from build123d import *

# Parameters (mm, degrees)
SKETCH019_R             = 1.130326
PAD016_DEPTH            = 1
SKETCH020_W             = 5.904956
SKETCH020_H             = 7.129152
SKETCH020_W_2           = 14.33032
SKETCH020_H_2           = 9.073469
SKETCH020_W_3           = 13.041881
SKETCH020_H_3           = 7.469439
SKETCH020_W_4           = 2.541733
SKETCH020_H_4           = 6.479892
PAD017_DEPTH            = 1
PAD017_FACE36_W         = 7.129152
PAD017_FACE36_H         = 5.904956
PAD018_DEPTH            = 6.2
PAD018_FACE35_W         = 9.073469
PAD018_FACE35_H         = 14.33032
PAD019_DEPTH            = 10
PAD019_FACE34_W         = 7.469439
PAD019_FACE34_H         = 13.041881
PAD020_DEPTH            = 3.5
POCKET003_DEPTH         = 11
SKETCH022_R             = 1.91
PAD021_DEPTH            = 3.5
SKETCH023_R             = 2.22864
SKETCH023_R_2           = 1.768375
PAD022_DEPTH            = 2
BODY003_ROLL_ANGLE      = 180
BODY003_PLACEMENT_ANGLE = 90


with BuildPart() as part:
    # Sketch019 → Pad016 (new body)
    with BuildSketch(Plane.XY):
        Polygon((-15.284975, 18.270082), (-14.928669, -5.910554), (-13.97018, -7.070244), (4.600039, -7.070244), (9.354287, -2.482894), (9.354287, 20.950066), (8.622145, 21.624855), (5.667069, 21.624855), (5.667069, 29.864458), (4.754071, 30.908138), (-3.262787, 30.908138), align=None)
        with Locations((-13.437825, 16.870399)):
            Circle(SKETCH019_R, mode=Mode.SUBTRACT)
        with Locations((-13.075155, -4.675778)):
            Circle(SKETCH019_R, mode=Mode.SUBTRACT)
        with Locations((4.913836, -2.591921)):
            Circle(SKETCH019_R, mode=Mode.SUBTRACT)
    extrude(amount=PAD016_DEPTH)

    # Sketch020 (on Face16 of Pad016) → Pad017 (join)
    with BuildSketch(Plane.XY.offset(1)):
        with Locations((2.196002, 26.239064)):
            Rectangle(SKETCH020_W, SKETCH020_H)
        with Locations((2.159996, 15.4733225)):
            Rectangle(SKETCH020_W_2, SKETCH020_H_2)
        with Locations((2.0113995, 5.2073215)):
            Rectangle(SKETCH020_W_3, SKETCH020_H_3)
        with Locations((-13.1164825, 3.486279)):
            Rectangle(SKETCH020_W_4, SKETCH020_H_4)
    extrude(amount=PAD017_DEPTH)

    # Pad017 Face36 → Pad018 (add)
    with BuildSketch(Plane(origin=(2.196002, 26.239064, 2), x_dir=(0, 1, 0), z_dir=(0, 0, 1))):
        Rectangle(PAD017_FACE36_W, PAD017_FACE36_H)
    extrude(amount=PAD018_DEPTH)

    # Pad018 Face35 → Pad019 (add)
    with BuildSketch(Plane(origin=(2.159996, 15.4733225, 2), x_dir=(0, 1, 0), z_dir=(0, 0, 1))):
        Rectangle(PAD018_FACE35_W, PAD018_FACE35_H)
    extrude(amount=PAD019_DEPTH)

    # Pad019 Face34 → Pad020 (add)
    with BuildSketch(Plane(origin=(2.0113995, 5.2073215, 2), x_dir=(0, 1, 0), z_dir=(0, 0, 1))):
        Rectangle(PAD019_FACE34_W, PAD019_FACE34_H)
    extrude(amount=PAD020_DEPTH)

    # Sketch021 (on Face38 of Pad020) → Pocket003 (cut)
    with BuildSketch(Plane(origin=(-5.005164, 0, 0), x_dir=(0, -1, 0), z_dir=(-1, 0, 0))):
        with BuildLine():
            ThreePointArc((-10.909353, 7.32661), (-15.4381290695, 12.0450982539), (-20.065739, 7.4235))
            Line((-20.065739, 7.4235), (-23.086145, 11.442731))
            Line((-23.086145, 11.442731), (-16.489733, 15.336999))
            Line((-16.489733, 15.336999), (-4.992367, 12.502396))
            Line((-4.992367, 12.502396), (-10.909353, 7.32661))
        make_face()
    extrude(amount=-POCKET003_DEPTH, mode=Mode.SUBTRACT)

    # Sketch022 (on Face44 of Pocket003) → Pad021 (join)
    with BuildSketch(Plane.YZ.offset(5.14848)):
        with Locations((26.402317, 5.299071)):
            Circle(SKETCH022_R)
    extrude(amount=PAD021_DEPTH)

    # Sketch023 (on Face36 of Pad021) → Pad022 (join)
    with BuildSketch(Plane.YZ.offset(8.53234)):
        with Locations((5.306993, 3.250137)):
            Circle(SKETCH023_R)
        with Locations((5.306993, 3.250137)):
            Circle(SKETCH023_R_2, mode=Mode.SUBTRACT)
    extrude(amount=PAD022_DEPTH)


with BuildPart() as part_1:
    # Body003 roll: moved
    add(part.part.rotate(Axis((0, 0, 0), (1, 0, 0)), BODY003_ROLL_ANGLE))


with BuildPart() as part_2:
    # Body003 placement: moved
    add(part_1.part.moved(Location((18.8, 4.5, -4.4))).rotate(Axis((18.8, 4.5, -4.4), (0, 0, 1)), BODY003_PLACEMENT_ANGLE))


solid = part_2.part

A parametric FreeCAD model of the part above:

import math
import FreeCAD as App
import Part
import Sketcher
from FreeCAD import Vector
Q = App.Units.Quantity

doc = App.newDocument("Part")
body = doc.addObject("PartDesign::Body", "Body")

sketch1 = body.newObject("Sketcher::SketchObject", "Sketch")
sketch1.AttachmentSupport = (doc.getObject("XY_Plane"), [""])
sketch1.MapMode = "FlatFace"
sketch1.addGeometry([
    Part.LineSegment(Vector(-15.284975, 18.270082, 0), Vector(-14.928669, -5.910554, 0)),
    Part.LineSegment(Vector(-14.928669, -5.910554, 0), Vector(-13.97018, -7.070244, 0)),
    Part.LineSegment(Vector(-13.97018, -7.070244, 0), Vector(4.600039, -7.070244, 0)),
    Part.LineSegment(Vector(4.600039, -7.070244, 0), Vector(9.354287, -2.482894, 0)),
    Part.LineSegment(Vector(9.354287, -2.482894, 0), Vector(9.354287, 20.950066, 0)),
    Part.LineSegment(Vector(9.354287, 20.950066, 0), Vector(8.622145, 21.624855, 0)),
    Part.LineSegment(Vector(8.622145, 21.624855, 0), Vector(5.667069, 21.624855, 0)),
    Part.LineSegment(Vector(5.667069, 21.624855, 0), Vector(5.667069, 29.864458, 0)),
    Part.LineSegment(Vector(5.667069, 29.864458, 0), Vector(4.754071, 30.908138, 0)),
    Part.LineSegment(Vector(4.754071, 30.908138, 0), Vector(-3.262787, 30.908138, 0)),
    Part.LineSegment(Vector(-3.262787, 30.908138, 0), Vector(-15.284975, 18.270082, 0)),
    Part.Circle(Vector(-13.075155, -4.675778, 0), Vector(0, 0, 1), 1.130326),
    Part.Circle(Vector(4.913836, -2.591921, 0), Vector(0, 0, 1), 1.130326),
    Part.Circle(Vector(-13.437825, 16.870399, 0), Vector(0, 0, 1), 1.130326),
], False)
sketch1.addConstraint([
    Sketcher.Constraint("Coincident", 0, 2, 1, 1),
    Sketcher.Constraint("Coincident", 1, 2, 2, 1),
    Sketcher.Constraint("Coincident", 2, 2, 3, 1),
    Sketcher.Constraint("Coincident", 3, 2, 4, 1),
    Sketcher.Constraint("Coincident", 4, 2, 5, 1),
    Sketcher.Constraint("Coincident", 5, 2, 6, 1),
    Sketcher.Constraint("Coincident", 6, 2, 7, 1),
    Sketcher.Constraint("Coincident", 7, 2, 8, 1),
    Sketcher.Constraint("Coincident", 8, 2, 9, 1),
    Sketcher.Constraint("Coincident", 9, 2, 10, 1),
    Sketcher.Constraint("Coincident", 10, 2, 0, 1),
    Sketcher.Constraint("Horizontal", 2),
    Sketcher.Constraint("Vertical", 4),
    Sketcher.Constraint("Horizontal", 6),
    Sketcher.Constraint("Vertical", 7),
    Sketcher.Constraint("Horizontal", 9),
    Sketcher.Constraint("Equal", 11, 12),
    Sketcher.Constraint("Equal", 12, 13),
    Sketcher.Constraint("Diameter", 11, Q("2.260652 mm")),
    Sketcher.Constraint("DistanceX", 2, 1, 2, 2, Q("18.570219 mm")),
    Sketcher.Constraint("DistanceY", 4, 1, 4, 2, Q("23.43296 mm")),
    Sketcher.Constraint("DistanceY", -1, 1, 13, 3, Q("16.870399 mm")),
    Sketcher.Constraint("DistanceY", 2, 2, 5, 2, Q("28.695099 mm")),
    Sketcher.Constraint("Distance", 0, Q("24.183261 mm")),
    Sketcher.Constraint("Distance", 1, Q("1.504521 mm")),
    Sketcher.Constraint("Distance", 3, Q("6.606561 mm")),
    Sketcher.Constraint("DistanceX", 6, 2, 6, 1, Q("2.955076 mm")),
    Sketcher.Constraint("DistanceX", 9, 2, 9, 1, Q("8.016858 mm")),
    Sketcher.Constraint("DistanceY", 7, 1, 7, 2, Q("8.239603 mm")),
    Sketcher.Constraint("DistanceY", 11, 3, -1, 1, Q("4.675778 mm")),
    Sketcher.Constraint("DistanceY", 12, 3, -1, 1, Q("2.591921 mm")),
    Sketcher.Constraint("DistanceX", 0, 2, -1, 1, Q("14.928669 mm")),
    Sketcher.Constraint("DistanceX", 1, 2, -1, 1, Q("13.97018 mm")),
    Sketcher.Constraint("DistanceX", -1, 1, 6, 2, Q("5.667069 mm")),
    Sketcher.Constraint("DistanceX", -1, 1, 8, 2, Q("4.754071 mm")),
    Sketcher.Constraint("DistanceY", -1, 1, 8, 2, Q("30.908138 mm")),
    Sketcher.Constraint("DistanceY", -1, 1, 10, 2, Q("18.270082 mm")),
    Sketcher.Constraint("DistanceX", 11, 3, 12, 3, Q("17.988991 mm")),
    Sketcher.Constraint("DistanceX", 13, 3, 11, 3, Q("0.36267 mm")),
    Sketcher.Constraint("DistanceX", 12, 3, 3, 2, Q("4.440451 mm")),
    Sketcher.Constraint("DistanceY", 2, 2, 3, 2, Q("4.58735 mm")),
    Sketcher.Constraint("DistanceY", 13, 3, 7, 2, Q("12.994059 mm")),
])
pad1 = body.newObject("PartDesign::Pad", "Pad")
pad1.Profile = sketch1
pad1.Length = 1

sketch2 = body.newObject("Sketcher::SketchObject", "Sketch001")
sketch2.AttachmentSupport = (doc.getObject("XY_Plane"), [""])
sketch2.MapMode = "FlatFace"
sketch2.AttachmentOffset = App.Placement(Vector(0, 0, 1), App.Rotation())
sketch2.addGeometry([
    Part.LineSegment(Vector(-0.756476, 29.80364, 0), Vector(-0.756476, 22.674488, 0)),
    Part.LineSegment(Vector(-0.756476, 22.674488, 0), Vector(5.14848, 22.674488, 0)),
    Part.LineSegment(Vector(5.14848, 22.674488, 0), Vector(5.14848, 29.80364, 0)),
    Part.LineSegment(Vector(5.14848, 29.80364, 0), Vector(-0.756476, 29.80364, 0)),
    Part.LineSegment(Vector(-5.005164, 20.010057, 0), Vector(-5.005164, 10.936588, 0)),
    Part.LineSegment(Vector(-5.005164, 10.936588, 0), Vector(9.325156, 10.936588, 0)),
    Part.LineSegment(Vector(9.325156, 10.936588, 0), Vector(9.325156, 20.010057, 0)),
    Part.LineSegment(Vector(9.325156, 20.010057, 0), Vector(-5.005164, 20.010057, 0)),
    Part.LineSegment(Vector(-4.509541, 8.942041, 0), Vector(-4.509541, 1.472602, 0)),
    Part.LineSegment(Vector(-4.509541, 1.472602, 0), Vector(8.53234, 1.472602, 0)),
    Part.LineSegment(Vector(8.53234, 1.472602, 0), Vector(8.53234, 8.942041, 0)),
    Part.LineSegment(Vector(8.53234, 8.942041, 0), Vector(-4.509541, 8.942041, 0)),
    Part.LineSegment(Vector(-14.387349, 6.726225, 0), Vector(-14.387349, 0.246333, 0)),
    Part.LineSegment(Vector(-14.387349, 0.246333, 0), Vector(-11.845616, 0.246333, 0)),
    Part.LineSegment(Vector(-11.845616, 0.246333, 0), Vector(-11.845616, 6.726225, 0)),
    Part.LineSegment(Vector(-11.845616, 6.726225, 0), Vector(-14.387349, 6.726225, 0)),
], False)
sketch2.addConstraint([
    Sketcher.Constraint("Coincident", 0, 2, 1, 1),
    Sketcher.Constraint("Coincident", 1, 2, 2, 1),
    Sketcher.Constraint("Coincident", 2, 2, 3, 1),
    Sketcher.Constraint("Coincident", 3, 2, 0, 1),
    Sketcher.Constraint("Coincident", 4, 2, 5, 1),
    Sketcher.Constraint("Coincident", 5, 2, 6, 1),
    Sketcher.Constraint("Coincident", 6, 2, 7, 1),
    Sketcher.Constraint("Coincident", 7, 2, 4, 1),
    Sketcher.Constraint("Coincident", 8, 2, 9, 1),
    Sketcher.Constraint("Coincident", 9, 2, 10, 1),
    Sketcher.Constraint("Coincident", 10, 2, 11, 1),
    Sketcher.Constraint("Coincident", 11, 2, 8, 1),
    Sketcher.Constraint("Coincident", 12, 2, 13, 1),
    Sketcher.Constraint("Coincident", 13, 2, 14, 1),
    Sketcher.Constraint("Coincident", 14, 2, 15, 1),
    Sketcher.Constraint("Coincident", 15, 2, 12, 1),
    Sketcher.Constraint("Vertical", 0),
    Sketcher.Constraint("Horizontal", 1),
    Sketcher.Constraint("Vertical", 2),
    Sketcher.Constraint("Horizontal", 3),
    Sketcher.Constraint("Vertical", 4),
    Sketcher.Constraint("Horizontal", 5),
    Sketcher.Constraint("Vertical", 6),
    Sketcher.Constraint("Horizontal", 7),
    Sketcher.Constraint("Vertical", 8),
    Sketcher.Constraint("Horizontal", 9),
    Sketcher.Constraint("Vertical", 10),
    Sketcher.Constraint("Horizontal", 11),
    Sketcher.Constraint("Vertical", 12),
    Sketcher.Constraint("Horizontal", 13),
    Sketcher.Constraint("Vertical", 14),
    Sketcher.Constraint("Horizontal", 15),
    Sketcher.Constraint("DistanceX", 5, 1, 5, 2, Q("14.33032 mm")),
    Sketcher.Constraint("DistanceX", 9, 1, 9, 2, Q("13.041881 mm")),
    Sketcher.Constraint("DistanceY", 4, 2, 4, 1, Q("9.073469 mm")),
    Sketcher.Constraint("DistanceY", 8, 2, 8, 1, Q("7.469439 mm")),
    Sketcher.Constraint("DistanceY", 4, 2, 0, 2, Q("11.7379 mm")),
    Sketcher.Constraint("DistanceX", 1, 1, 1, 2, Q("5.904956 mm")),
    Sketcher.Constraint("DistanceX", 13, 1, 13, 2, Q("2.541733 mm")),
    Sketcher.Constraint("DistanceY", 0, 2, 0, 1, Q("7.129152 mm")),
    Sketcher.Constraint("DistanceY", 12, 2, 12, 1, Q("6.479892 mm")),
    Sketcher.Constraint("DistanceY", -1, 1, 0, 2, Q("22.674488 mm")),
    Sketcher.Constraint("DistanceX", -1, 1, 1, 2, Q("5.14848 mm")),
    Sketcher.Constraint("DistanceX", 8, 2, -1, 1, Q("4.509541 mm")),
    Sketcher.Constraint("DistanceY", -1, 1, 10, 2, Q("8.942041 mm")),
    Sketcher.Constraint("DistanceX", 12, 2, -1, 1, Q("14.387349 mm")),
    Sketcher.Constraint("DistanceX", 0, 2, 5, 2, Q("10.081632 mm")),
    Sketcher.Constraint("DistanceY", 12, 2, 8, 2, Q("1.226269 mm")),
])
pad2 = body.newObject("PartDesign::Pad", "Pad001")
pad2.Profile = sketch2
pad2.Length = 1

sketch3 = body.newObject("Sketcher::SketchObject", "Sketch002")
sketch3.AttachmentSupport = (doc.getObject("XY_Plane"), [""])
sketch3.MapMode = "FlatFace"
sketch3.AttachmentOffset = App.Placement(Vector(0, 0, 2), App.Rotation())
sketch3.addGeometry([
    Part.LineSegment(Vector(-0.756476, 22.674488, 0), Vector(5.14848, 22.674488, 0)),
    Part.LineSegment(Vector(5.14848, 22.674488, 0), Vector(5.14848, 29.80364, 0)),
    Part.LineSegment(Vector(5.14848, 29.80364, 0), Vector(-0.756476, 29.80364, 0)),
    Part.LineSegment(Vector(-0.756476, 29.80364, 0), Vector(-0.756476, 22.674488, 0)),
], False)
sketch3.addConstraint([
    Sketcher.Constraint("Coincident", 0, 2, 1, 1),
    Sketcher.Constraint("Coincident", 1, 2, 2, 1),
    Sketcher.Constraint("Coincident", 2, 2, 3, 1),
    Sketcher.Constraint("Coincident", 3, 2, 0, 1),
    Sketcher.Constraint("Horizontal", 0),
    Sketcher.Constraint("Vertical", 1),
    Sketcher.Constraint("Horizontal", 2),
    Sketcher.Constraint("Vertical", 3),
    Sketcher.Constraint("DistanceX", 0, 1, 0, 2, Q("5.904956 mm")),
    Sketcher.Constraint("DistanceY", 1, 1, 1, 2, Q("7.129152 mm")),
    Sketcher.Constraint("DistanceX", -1, 1, 0, 2, Q("5.14848 mm")),
    Sketcher.Constraint("DistanceY", -1, 1, 0, 2, Q("22.674488 mm")),
])
pad3 = body.newObject("PartDesign::Pad", "Pad002")
pad3.Profile = sketch3
pad3.Length = 6.2

sketch4 = body.newObject("Sketcher::SketchObject", "Sketch003")
sketch4.AttachmentSupport = (doc.getObject("XY_Plane"), [""])
sketch4.MapMode = "FlatFace"
sketch4.AttachmentOffset = App.Placement(Vector(0, 0, 2), App.Rotation())
sketch4.addGeometry([
    Part.LineSegment(Vector(-5.005164, 10.936588, 0), Vector(9.325156, 10.936588, 0)),
    Part.LineSegment(Vector(9.325156, 10.936588, 0), Vector(9.325156, 20.010057, 0)),
    Part.LineSegment(Vector(9.325156, 20.010057, 0), Vector(-5.005164, 20.010057, 0)),
    Part.LineSegment(Vector(-5.005164, 20.010057, 0), Vector(-5.005164, 10.936588, 0)),
], False)
sketch4.addConstraint([
    Sketcher.Constraint("Coincident", 0, 2, 1, 1),
    Sketcher.Constraint("Coincident", 1, 2, 2, 1),
    Sketcher.Constraint("Coincident", 2, 2, 3, 1),
    Sketcher.Constraint("Coincident", 3, 2, 0, 1),
    Sketcher.Constraint("Horizontal", 0),
    Sketcher.Constraint("Vertical", 1),
    Sketcher.Constraint("Horizontal", 2),
    Sketcher.Constraint("Vertical", 3),
    Sketcher.Constraint("DistanceX", 0, 1, 0, 2, Q("14.33032 mm")),
    Sketcher.Constraint("DistanceY", 1, 1, 1, 2, Q("9.073469 mm")),
    Sketcher.Constraint("DistanceX", -1, 1, 0, 2, Q("9.325156 mm")),
    Sketcher.Constraint("DistanceY", -1, 1, 0, 2, Q("10.936588 mm")),
])
pad4 = body.newObject("PartDesign::Pad", "Pad003")
pad4.Profile = sketch4
pad4.Length = 10

sketch5 = body.newObject("Sketcher::SketchObject", "Sketch004")
sketch5.AttachmentSupport = (doc.getObject("XY_Plane"), [""])
sketch5.MapMode = "FlatFace"
sketch5.AttachmentOffset = App.Placement(Vector(0, 0, 2), App.Rotation())
sketch5.addGeometry([
    Part.LineSegment(Vector(-4.509541, 1.472602, 0), Vector(8.53234, 1.472602, 0)),
    Part.LineSegment(Vector(8.53234, 1.472602, 0), Vector(8.53234, 8.942041, 0)),
    Part.LineSegment(Vector(8.53234, 8.942041, 0), Vector(-4.509541, 8.942041, 0)),
    Part.LineSegment(Vector(-4.509541, 8.942041, 0), Vector(-4.509541, 1.472602, 0)),
], False)
sketch5.addConstraint([
    Sketcher.Constraint("Coincident", 0, 2, 1, 1),
    Sketcher.Constraint("Coincident", 1, 2, 2, 1),
    Sketcher.Constraint("Coincident", 2, 2, 3, 1),
    Sketcher.Constraint("Coincident", 3, 2, 0, 1),
    Sketcher.Constraint("Horizontal", 0),
    Sketcher.Constraint("Vertical", 1),
    Sketcher.Constraint("Horizontal", 2),
    Sketcher.Constraint("Vertical", 3),
    Sketcher.Constraint("DistanceX", 0, 1, 0, 2, Q("13.041881 mm")),
    Sketcher.Constraint("DistanceY", 1, 1, 1, 2, Q("7.469439 mm")),
    Sketcher.Constraint("DistanceX", -1, 1, 0, 2, Q("8.53234 mm")),
    Sketcher.Constraint("DistanceY", -1, 1, 1, 2, Q("8.942041 mm")),
])
pad5 = body.newObject("PartDesign::Pad", "Pad004")
pad5.Profile = sketch5
pad5.Length = 3.5

sketch6 = body.newObject("Sketcher::SketchObject", "Sketch005")
sketch6.AttachmentSupport = (doc.getObject("YZ_Plane"), [""])
sketch6.MapMode = "FlatFace"
sketch6.AttachmentOffset = App.Placement(Vector(0, 0, -5.005164), App.Rotation())
sketch6.addGeometry([
    Part.ArcOfCircle(Part.Circle(Vector(15.486584, 7.466002, 0), Vector(0, 0, 1), 4.579353), math.radians(-0.531783), math.radians(181.744309)),
    Part.LineSegment(Vector(10.909353, 7.32661, 0), Vector(4.992367, 12.502396, 0)),
    Part.LineSegment(Vector(4.992367, 12.502396, 0), Vector(16.489733, 15.336999, 0)),
    Part.LineSegment(Vector(16.489733, 15.336999, 0), Vector(23.086145, 11.442731, 0)),
    Part.LineSegment(Vector(23.086145, 11.442731, 0), Vector(20.065739, 7.4235, 0)),
], False)
sketch6.addConstraint([
    Sketcher.Constraint("Coincident", 0, 2, 1, 1),
    Sketcher.Constraint("Coincident", 1, 2, 2, 1),
    Sketcher.Constraint("Coincident", 2, 2, 3, 1),
    Sketcher.Constraint("Coincident", 3, 2, 4, 1),
    Sketcher.Constraint("Coincident", 4, 2, 0, 1),
    Sketcher.Constraint("DistanceY", -1, 1, 0, 3, Q("7.466002 mm")),
    Sketcher.Constraint("DistanceY", -1, 1, 2, 2, Q("15.336999 mm")),
    Sketcher.Constraint("Radius", 0, Q("4.579353 mm")),
    Sketcher.Constraint("DistanceY", -1, 1, 4, 2, Q("7.4235 mm")),
    Sketcher.Constraint("Distance", 2, Q("11.841638 mm")),
    Sketcher.Constraint("Distance", 4, Q("5.027631 mm")),
    Sketcher.Constraint("DistanceY", -1, 1, 0, 2, Q("7.32661 mm")),
    Sketcher.Constraint("DistanceY", -1, 1, 3, 2, Q("11.442731 mm")),
    Sketcher.Constraint("DistanceX", -1, 1, 4, 2, Q("20.065739 mm")),
    Sketcher.Constraint("DistanceX", 0, 3, 2, 2, Q("1.003149 mm")),
    Sketcher.Constraint("DistanceX", 1, 2, 3, 2, Q("18.093778 mm")),
])
pocket1 = body.newObject("PartDesign::Pocket", "Pocket")
pocket1.Profile = sketch6
pocket1.Length = 11
pocket1.Reversed = True

sketch7 = body.newObject("Sketcher::SketchObject", "Sketch006")
sketch7.AttachmentSupport = (doc.getObject("YZ_Plane"), [""])
sketch7.MapMode = "FlatFace"
sketch7.AttachmentOffset = App.Placement(Vector(0, 0, 5.14848), App.Rotation())
sketch7.addGeometry(Part.Circle(Vector(26.402317, 5.299071, 0), Vector(0, 0, 1), 1.91), False)
sketch7.addConstraint([
    Sketcher.Constraint("Diameter", 0, Q("3.82 mm")),
    Sketcher.Constraint("DistanceY", -1, 1, 0, 3, Q("5.299071 mm")),
    Sketcher.Constraint("DistanceX", -1, 1, 0, 3, Q("26.402317 mm")),
])
pad6 = body.newObject("PartDesign::Pad", "Pad005")
pad6.Profile = sketch7
pad6.Length = 3.5

sketch8 = body.newObject("Sketcher::SketchObject", "Sketch007")
sketch8.AttachmentSupport = (doc.getObject("YZ_Plane"), [""])
sketch8.MapMode = "FlatFace"
sketch8.AttachmentOffset = App.Placement(Vector(0, 0, 8.53234), App.Rotation())
sketch8.addGeometry([
    Part.Circle(Vector(5.306993, 3.250137, 0), Vector(0, 0, 1), 2.22864),
    Part.Circle(Vector(5.306993, 3.250137, 0), Vector(0, 0, 1), 1.768375),
], False)
sketch8.addConstraint([
    Sketcher.Constraint("Coincident", 1, 3, 0, 3),
    Sketcher.Constraint("Diameter", 0, Q("4.45728 mm")),
    Sketcher.Constraint("Diameter", 1, Q("3.53675 mm")),
    Sketcher.Constraint("DistanceX", -1, 1, 0, 3, Q("5.306993 mm")),
    Sketcher.Constraint("DistanceY", -1, 1, 0, 3, Q("3.250137 mm")),
])
pad7 = body.newObject("PartDesign::Pad", "Pad006")
pad7.Profile = sketch8
pad7.Length = 2
body2 = doc.addObject("PartDesign::Body", "Body001")
doc.recompute()

body.Placement = App.Placement(Vector(0, 0, 0), App.Rotation(Vector(1, 0, 0), 180))
boolean = body2.newObject("PartDesign::Boolean", "Boolean")
boolean.Type = "Fuse"
boolean.addObjects([body])
body3 = doc.addObject("PartDesign::Body", "Body002")
doc.recompute()

body2.Placement = App.Placement(Vector(18.8, 4.5, -4.4), App.Rotation(Vector(0, 0, 1), 90))
boolean2 = body3.newObject("PartDesign::Boolean", "Boolean001")
boolean2.Type = "Fuse"
boolean2.addObjects([body2])

doc.recompute()
